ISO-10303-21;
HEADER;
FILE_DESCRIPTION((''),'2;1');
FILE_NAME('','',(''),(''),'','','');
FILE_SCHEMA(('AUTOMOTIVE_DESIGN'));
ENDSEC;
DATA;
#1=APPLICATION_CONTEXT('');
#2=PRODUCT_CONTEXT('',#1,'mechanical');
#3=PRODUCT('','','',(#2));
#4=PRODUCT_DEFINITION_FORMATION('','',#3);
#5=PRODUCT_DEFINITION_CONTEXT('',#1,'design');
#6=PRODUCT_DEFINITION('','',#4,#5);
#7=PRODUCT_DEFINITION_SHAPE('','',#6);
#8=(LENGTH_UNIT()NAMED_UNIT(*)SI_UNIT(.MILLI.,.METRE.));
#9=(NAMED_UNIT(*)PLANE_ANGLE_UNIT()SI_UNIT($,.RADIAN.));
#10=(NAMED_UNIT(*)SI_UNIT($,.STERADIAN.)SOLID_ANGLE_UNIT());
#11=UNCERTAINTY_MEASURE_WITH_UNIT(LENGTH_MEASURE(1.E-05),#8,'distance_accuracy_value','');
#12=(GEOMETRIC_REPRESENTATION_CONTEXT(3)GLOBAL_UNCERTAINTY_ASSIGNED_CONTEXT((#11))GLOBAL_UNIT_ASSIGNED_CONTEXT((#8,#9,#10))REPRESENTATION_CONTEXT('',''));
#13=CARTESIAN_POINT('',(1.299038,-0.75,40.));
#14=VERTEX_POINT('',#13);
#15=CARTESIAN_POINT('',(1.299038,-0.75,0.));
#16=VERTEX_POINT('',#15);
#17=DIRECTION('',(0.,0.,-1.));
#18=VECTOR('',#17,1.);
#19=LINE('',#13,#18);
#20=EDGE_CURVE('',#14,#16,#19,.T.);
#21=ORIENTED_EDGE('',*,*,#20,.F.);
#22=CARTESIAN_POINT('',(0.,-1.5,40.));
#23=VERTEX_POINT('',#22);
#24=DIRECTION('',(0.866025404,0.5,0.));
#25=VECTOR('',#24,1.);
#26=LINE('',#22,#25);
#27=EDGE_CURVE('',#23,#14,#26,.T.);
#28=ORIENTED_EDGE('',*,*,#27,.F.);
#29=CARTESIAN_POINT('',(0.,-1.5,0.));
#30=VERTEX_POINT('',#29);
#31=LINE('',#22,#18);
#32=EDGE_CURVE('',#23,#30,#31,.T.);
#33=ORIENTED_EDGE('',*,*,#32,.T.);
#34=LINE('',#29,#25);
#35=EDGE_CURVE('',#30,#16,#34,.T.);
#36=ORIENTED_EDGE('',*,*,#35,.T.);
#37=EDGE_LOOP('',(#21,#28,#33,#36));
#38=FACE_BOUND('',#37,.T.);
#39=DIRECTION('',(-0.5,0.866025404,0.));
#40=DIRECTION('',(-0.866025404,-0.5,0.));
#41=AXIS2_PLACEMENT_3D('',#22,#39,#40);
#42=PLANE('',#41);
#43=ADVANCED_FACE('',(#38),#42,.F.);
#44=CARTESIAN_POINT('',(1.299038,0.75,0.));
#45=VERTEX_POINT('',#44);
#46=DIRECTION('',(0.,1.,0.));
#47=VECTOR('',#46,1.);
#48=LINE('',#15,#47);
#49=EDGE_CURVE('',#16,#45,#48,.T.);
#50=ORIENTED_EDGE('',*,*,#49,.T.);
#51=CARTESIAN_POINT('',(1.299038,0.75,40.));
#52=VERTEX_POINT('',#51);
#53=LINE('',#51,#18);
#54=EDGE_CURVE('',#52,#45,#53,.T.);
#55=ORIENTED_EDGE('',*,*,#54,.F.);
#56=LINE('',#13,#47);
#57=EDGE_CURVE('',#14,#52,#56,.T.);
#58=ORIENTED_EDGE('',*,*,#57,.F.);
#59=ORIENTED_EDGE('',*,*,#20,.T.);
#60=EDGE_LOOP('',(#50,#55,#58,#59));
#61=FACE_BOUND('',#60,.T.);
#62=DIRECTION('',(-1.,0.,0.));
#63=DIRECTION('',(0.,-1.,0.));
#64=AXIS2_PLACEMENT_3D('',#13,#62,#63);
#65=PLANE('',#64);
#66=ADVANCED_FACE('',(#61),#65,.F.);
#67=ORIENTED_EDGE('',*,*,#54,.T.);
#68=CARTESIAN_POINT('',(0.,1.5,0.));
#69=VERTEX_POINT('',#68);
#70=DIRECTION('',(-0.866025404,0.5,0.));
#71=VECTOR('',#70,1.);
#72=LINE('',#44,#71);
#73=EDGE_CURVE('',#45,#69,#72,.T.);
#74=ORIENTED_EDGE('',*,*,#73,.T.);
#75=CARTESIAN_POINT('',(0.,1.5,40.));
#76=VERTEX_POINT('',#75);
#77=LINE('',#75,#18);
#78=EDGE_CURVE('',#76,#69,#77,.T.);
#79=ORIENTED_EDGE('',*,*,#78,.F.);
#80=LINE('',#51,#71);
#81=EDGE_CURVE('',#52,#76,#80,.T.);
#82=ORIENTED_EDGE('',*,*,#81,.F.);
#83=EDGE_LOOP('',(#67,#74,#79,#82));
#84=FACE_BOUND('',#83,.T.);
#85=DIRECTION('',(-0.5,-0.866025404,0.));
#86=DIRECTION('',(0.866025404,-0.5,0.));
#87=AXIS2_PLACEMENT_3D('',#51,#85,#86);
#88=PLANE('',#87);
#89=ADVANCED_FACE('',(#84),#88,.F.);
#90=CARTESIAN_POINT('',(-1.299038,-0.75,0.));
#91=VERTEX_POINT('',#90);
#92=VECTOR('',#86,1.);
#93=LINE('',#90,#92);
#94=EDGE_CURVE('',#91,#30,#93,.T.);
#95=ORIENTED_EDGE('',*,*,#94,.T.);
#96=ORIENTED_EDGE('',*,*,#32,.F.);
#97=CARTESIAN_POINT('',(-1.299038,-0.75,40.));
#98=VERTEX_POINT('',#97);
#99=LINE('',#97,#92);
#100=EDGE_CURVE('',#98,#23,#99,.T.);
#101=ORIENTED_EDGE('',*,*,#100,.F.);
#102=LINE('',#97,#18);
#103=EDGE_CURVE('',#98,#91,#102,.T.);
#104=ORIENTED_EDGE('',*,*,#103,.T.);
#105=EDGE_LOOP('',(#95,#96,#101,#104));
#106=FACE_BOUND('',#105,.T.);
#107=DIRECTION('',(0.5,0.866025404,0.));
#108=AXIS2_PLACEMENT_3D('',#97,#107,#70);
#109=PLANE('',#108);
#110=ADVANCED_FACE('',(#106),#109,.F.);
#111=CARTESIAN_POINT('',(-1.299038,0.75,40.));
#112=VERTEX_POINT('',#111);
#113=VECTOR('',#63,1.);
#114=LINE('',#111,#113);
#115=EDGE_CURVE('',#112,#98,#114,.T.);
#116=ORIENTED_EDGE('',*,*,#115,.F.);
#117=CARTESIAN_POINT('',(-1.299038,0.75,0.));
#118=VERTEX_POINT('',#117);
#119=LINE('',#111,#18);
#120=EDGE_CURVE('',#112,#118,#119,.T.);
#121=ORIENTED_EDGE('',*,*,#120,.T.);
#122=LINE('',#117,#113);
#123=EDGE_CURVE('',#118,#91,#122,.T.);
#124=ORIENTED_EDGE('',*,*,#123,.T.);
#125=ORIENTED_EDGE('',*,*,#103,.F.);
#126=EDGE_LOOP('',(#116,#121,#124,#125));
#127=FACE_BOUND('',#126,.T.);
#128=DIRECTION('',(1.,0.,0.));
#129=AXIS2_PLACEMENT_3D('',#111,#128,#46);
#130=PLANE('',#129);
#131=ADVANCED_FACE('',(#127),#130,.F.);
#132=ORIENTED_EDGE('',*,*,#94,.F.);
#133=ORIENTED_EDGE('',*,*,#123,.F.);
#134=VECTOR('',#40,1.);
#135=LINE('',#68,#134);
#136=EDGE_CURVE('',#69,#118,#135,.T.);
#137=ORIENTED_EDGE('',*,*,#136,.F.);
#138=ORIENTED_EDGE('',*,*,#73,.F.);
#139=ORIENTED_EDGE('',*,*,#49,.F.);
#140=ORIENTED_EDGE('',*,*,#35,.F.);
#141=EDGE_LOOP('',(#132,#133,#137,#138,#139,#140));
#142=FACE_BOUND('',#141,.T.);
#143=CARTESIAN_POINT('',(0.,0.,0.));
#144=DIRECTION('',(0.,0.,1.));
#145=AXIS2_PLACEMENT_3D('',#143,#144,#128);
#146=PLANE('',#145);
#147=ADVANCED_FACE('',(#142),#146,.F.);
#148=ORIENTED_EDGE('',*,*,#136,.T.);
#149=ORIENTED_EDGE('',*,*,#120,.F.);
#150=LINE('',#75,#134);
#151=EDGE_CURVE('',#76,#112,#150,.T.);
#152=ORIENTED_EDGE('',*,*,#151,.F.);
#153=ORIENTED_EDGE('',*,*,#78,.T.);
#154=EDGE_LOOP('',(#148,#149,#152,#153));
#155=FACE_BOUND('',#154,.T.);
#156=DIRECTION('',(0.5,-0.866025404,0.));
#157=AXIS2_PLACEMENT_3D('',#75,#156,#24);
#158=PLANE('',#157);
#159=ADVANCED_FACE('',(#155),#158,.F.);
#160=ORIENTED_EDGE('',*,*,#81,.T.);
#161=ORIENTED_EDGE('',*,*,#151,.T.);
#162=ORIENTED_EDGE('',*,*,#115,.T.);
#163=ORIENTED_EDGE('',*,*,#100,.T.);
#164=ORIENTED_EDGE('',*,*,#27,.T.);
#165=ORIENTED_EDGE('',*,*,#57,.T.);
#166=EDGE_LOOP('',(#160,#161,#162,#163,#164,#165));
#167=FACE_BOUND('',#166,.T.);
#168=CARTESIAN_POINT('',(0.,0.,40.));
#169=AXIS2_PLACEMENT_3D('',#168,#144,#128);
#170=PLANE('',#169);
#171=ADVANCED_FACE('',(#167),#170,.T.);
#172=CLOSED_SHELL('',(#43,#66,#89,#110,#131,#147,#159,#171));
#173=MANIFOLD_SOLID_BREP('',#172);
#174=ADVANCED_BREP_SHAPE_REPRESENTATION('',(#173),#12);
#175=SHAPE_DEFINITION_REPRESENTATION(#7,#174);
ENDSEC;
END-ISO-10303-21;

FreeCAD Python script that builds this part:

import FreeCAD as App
import Part
import Sketcher

V = App.Vector
Q = App.Units.Quantity

doc = App.newDocument("Part")
body = doc.addObject("PartDesign::Body", "Body")

# Sketch on XY plane
sketch1 = doc.addObject("Sketcher::SketchObject", "Sketch")
body.addObject(sketch1)
sketch1.AttachmentSupport = (doc.XY_Plane, [""])
sketch1.MapMode = "FlatFace"
sketch1.addGeometry([
    Part.LineSegment(V(0, 1.5, 0), V(-1.299038, 0.75, 0)),  # 0
    Part.LineSegment(V(-1.299038, 0.75, 0), V(-1.299038, -0.75, 0)),  # 1
    Part.LineSegment(V(-1.299038, -0.75, 0), V(0, -1.5, 0)),  # 2
    Part.LineSegment(V(0, -1.5, 0), V(1.299038, -0.75, 0)),  # 3
    Part.LineSegment(V(1.299038, -0.75, 0), V(1.299038, 0.75, 0)),  # 4
    Part.LineSegment(V(1.299038, 0.75, 0), V(0, 1.5, 0)),  # 5
], False)
sketch1.addConstraint([
    Sketcher.Constraint("Coincident", 0, 2, 1, 1),
    Sketcher.Constraint("Coincident", 1, 2, 2, 1),
    Sketcher.Constraint("Coincident", 2, 2, 3, 1),
    Sketcher.Constraint("Coincident", 3, 2, 4, 1),
    Sketcher.Constraint("Coincident", 4, 2, 5, 1),
    Sketcher.Constraint("Coincident", 5, 2, 0, 1),
    Sketcher.Constraint("Vertical", 1),
    Sketcher.Constraint("Vertical", 4),
    Sketcher.Constraint("Symmetric", 0, 2, 3, 2, -1, 1),
    Sketcher.Constraint("Symmetric", 2, 2, 5, 2, -1, 1),
    Sketcher.Constraint("PointOnObject", 2, 2, -2),
    Sketcher.Constraint("Parallel", 2, 5),
    Sketcher.Constraint("Horizontal", 1, 2, 3, 2),
    Sketcher.Constraint("Angle", 0, Q("-150 deg")),
    Sketcher.Constraint("DistanceY", 1, 2, 1, 1, 1.5),
    Sketcher.Constraint("DistanceY", 2, 2, 5, 2, 3.0),
])
pad1 = doc.addObject("PartDesign::Pad", "Pad")
body.addObject(pad1)
pad1.Profile = sketch1
pad1.Length = 40

doc.recompute()
